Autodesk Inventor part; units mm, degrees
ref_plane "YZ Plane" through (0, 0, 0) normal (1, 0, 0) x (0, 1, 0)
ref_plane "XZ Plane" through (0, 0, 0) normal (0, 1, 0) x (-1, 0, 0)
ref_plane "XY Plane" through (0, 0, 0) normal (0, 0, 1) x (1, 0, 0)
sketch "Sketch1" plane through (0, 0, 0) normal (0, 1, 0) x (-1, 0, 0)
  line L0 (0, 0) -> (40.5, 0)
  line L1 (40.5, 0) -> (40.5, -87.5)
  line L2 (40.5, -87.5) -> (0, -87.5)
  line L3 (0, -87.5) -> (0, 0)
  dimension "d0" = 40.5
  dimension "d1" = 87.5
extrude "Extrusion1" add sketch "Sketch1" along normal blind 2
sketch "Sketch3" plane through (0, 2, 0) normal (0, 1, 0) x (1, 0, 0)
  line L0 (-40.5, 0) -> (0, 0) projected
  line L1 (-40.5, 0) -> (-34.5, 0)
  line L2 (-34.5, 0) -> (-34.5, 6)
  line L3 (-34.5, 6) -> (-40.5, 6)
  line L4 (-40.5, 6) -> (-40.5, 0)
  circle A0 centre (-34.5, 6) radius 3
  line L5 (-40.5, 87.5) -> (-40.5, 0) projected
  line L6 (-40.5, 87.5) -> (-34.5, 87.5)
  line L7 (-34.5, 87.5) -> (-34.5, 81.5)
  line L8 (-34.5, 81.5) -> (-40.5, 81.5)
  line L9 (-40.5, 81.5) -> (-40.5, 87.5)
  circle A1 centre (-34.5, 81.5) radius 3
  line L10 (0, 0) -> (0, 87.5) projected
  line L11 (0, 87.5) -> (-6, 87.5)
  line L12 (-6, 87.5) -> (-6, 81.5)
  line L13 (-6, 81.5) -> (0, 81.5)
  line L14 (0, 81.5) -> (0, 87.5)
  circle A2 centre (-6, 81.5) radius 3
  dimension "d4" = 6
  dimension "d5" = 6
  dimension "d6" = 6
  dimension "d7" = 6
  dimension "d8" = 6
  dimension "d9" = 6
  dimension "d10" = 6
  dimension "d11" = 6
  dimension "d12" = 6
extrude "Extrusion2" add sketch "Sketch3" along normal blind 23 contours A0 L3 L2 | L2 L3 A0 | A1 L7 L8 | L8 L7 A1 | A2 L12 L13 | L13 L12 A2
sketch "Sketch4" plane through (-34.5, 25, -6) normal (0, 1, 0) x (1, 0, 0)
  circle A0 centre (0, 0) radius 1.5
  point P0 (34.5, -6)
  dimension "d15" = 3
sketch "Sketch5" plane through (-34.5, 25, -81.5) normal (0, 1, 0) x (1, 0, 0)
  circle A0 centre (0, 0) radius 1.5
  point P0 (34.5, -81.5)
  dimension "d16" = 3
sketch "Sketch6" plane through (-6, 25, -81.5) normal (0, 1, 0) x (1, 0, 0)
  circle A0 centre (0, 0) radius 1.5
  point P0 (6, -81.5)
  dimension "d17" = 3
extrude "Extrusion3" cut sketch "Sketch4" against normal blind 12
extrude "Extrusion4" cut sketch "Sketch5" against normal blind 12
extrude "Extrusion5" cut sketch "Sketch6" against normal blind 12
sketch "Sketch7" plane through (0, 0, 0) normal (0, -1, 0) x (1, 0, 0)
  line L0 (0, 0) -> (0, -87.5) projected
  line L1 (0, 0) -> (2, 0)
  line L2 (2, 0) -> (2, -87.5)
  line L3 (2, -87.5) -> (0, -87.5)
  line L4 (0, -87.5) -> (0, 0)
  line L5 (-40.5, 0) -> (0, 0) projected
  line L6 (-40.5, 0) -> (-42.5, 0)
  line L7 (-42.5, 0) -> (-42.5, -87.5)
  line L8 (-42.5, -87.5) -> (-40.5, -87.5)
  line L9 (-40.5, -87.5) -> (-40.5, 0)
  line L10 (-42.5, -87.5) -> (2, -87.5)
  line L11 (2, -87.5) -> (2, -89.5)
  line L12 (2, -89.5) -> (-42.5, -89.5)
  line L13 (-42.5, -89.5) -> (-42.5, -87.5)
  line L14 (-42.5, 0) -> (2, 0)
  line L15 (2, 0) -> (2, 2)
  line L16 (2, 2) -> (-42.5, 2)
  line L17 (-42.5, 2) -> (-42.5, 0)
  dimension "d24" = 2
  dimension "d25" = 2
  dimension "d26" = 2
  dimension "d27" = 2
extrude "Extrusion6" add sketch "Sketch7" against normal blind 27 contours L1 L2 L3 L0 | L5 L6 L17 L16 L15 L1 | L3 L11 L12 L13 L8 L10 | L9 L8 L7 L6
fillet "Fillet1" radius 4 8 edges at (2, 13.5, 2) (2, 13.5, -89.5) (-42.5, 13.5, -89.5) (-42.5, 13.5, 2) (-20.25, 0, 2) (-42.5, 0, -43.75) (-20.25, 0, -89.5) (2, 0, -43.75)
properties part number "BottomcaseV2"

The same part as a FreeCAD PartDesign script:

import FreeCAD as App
import Part
import Sketcher
Q = App.Units.Quantity


def edges_at(feature, points):
    """Names of the edges that pass closest to the given points."""
    edges = feature.Shape.Edges
    near = lambda p: min(range(len(edges)), key=lambda i: edges[i].distToShape(Part.Vertex(*p))[0])
    return sorted({f"Edge{near(p) + 1}" for p in points})


def add_polygon(sketch, points):
    """Adds a closed chain of lines whose ends are joined by coincident constraints."""
    first, n = sketch.GeometryCount, len(points)
    for a, b in zip(points, points[1:] + points[:1]):
        sketch.addGeometry(Part.LineSegment(App.Vector(*a, 0), App.Vector(*b, 0)), False)
    for i in range(n):
        sketch.addConstraint(Sketcher.Constraint("Coincident", first + i, 2, first + (i + 1) % n, 1))

doc = App.newDocument("Part")
body = doc.addObject("PartDesign::Body", "Body")

sketch1 = body.newObject("Sketcher::SketchObject", "Sketch")
sketch1.AttachmentSupport = (doc.getObject("XZ_Plane"), [""])
sketch1.MapMode = "FlatFace"
add_polygon(sketch1, [(-40, 0), (0, 0), (0, -88), (-40, -88)])
sketch1.addConstraint([
    Sketcher.Constraint("Horizontal", 0),
    Sketcher.Constraint("Vertical", 1),
    Sketcher.Constraint("Horizontal", 2),
    Sketcher.Constraint("Vertical", 3),
    Sketcher.Constraint("Coincident", 0, 2, -1, 1),
    Sketcher.Constraint("DistanceX", 0, 1, 0, 2, Q("40.5 mm")),
    Sketcher.Constraint("DistanceY", 1, 2, 1, 1, Q("87.5 mm")),
])
pad1 = body.newObject("PartDesign::Pad", "Pad")
pad1.Profile = sketch1
pad1.Length = 2
pad1.Reversed = True

sketch2 = body.newObject("Sketcher::SketchObject", "Sketch001")
sketch2.AttachmentSupport = (doc.getObject("XZ_Plane"), [""])
sketch2.MapMode = "FlatFace"
sketch2.AttachmentOffset = App.Placement(App.Vector(0, 0, -2), App.Rotation())
sketch2.addGeometry([
    Part.Circle(App.Vector(-34.5, -6, 0), App.Vector(0, 0, 1), 3),
    Part.Circle(App.Vector(-34.5, -81.5, 0), App.Vector(0, 0, 1), 3),
    Part.Circle(App.Vector(-6, -81.5, 0), App.Vector(0, 0, 1), 3),
], False)
sketch2.addConstraint([
    Sketcher.Constraint("Equal", 0, 1),
    Sketcher.Constraint("Equal", 1, 2),
    Sketcher.Constraint("Horizontal", 1, 3, 2, 3),
    Sketcher.Constraint("Vertical", 0, 3, 1, 3),
    Sketcher.Constraint("Diameter", 0, Q("6 mm")),
    Sketcher.Constraint("DistanceY", 0, 3, -1, 1, Q("6 mm")),
    Sketcher.Constraint("DistanceX", 2, 3, -1, 1, Q("6 mm")),
    Sketcher.Constraint("DistanceX", 0, 3, -1, 1, Q("34.5 mm")),
    Sketcher.Constraint("DistanceY", 1, 3, -1, 1, Q("81.5 mm")),
])
pad2 = body.newObject("PartDesign::Pad", "Pad001")
pad2.Profile = sketch2
pad2.Length = 23
pad2.Reversed = True

sketch3 = body.newObject("Sketcher::SketchObject", "Sketch002")
sketch3.AttachmentSupport = (doc.getObject("XZ_Plane"), [""])
sketch3.MapMode = "FlatFace"
sketch3.AttachmentOffset = App.Placement(App.Vector(0, 0, -25), App.Rotation())
sketch3.addGeometry(Part.Circle(App.Vector(-34.5, -6, 0), App.Vector(0, 0, 1), 1.5), False)
sketch3.addConstraint([
    Sketcher.Constraint("Diameter", 0, Q("3 mm")),
    Sketcher.Constraint("DistanceY", 0, 3, -1, 1, Q("6 mm")),
    Sketcher.Constraint("DistanceX", 0, 3, -1, 1, Q("34.5 mm")),
])
pocket1 = body.newObject("PartDesign::Pocket", "Pocket")
pocket1.Profile = sketch3
pocket1.Length = 12
pocket1.Reversed = True

sketch4 = body.newObject("Sketcher::SketchObject", "Sketch003")
sketch4.AttachmentSupport = (doc.getObject("XZ_Plane"), [""])
sketch4.MapMode = "FlatFace"
sketch4.AttachmentOffset = App.Placement(App.Vector(0, 0, -25), App.Rotation())
sketch4.addGeometry(Part.Circle(App.Vector(-34.5, -81.5, 0), App.Vector(0, 0, 1), 1.5), False)
sketch4.addConstraint([
    Sketcher.Constraint("Diameter", 0, Q("3 mm")),
    Sketcher.Constraint("DistanceX", 0, 3, -1, 1, Q("34.5 mm")),
    Sketcher.Constraint("DistanceY", 0, 3, -1, 1, Q("81.5 mm")),
])
pocket2 = body.newObject("PartDesign::Pocket", "Pocket001")
pocket2.Profile = sketch4
pocket2.Length = 12
pocket2.Reversed = True

sketch5 = body.newObject("Sketcher::SketchObject", "Sketch004")
sketch5.AttachmentSupport = (doc.getObject("XZ_Plane"), [""])
sketch5.MapMode = "FlatFace"
sketch5.AttachmentOffset = App.Placement(App.Vector(0, 0, -25), App.Rotation())
sketch5.addGeometry(Part.Circle(App.Vector(-6, -81.5, 0), App.Vector(0, 0, 1), 1.5), False)
sketch5.addConstraint([
    Sketcher.Constraint("Diameter", 0, Q("3 mm")),
    Sketcher.Constraint("DistanceX", 0, 3, -1, 1, Q("6 mm")),
    Sketcher.Constraint("DistanceY", 0, 3, -1, 1, Q("81.5 mm")),
])
pocket3 = body.newObject("PartDesign::Pocket", "Pocket002")
pocket3.Profile = sketch5
pocket3.Length = 12
pocket3.Reversed = True

sketch6 = body.newObject("Sketcher::SketchObject", "Sketch005")
sketch6.AttachmentSupport = (doc.getObject("XZ_Plane"), [""])
sketch6.MapMode = "FlatFace"
add_polygon(sketch6, [(2, 2), (-42, 2), (-42, -90), (2, -90)])
add_polygon(sketch6, [(0, 0), (0, -88), (-40, -88), (-40, 0)])
sketch6.addConstraint([
    Sketcher.Constraint("Horizontal", 0),
    Sketcher.Constraint("Vertical", 1),
    Sketcher.Constraint("Horizontal", 2),
    Sketcher.Constraint("Vertical", 3),
    Sketcher.Constraint("Vertical", 4),
    Sketcher.Constraint("Horizontal", 5),
    Sketcher.Constraint("Vertical", 6),
    Sketcher.Constraint("Horizontal", 7),
    Sketcher.Constraint("Coincident", 7, 2, -1, 1),
    Sketcher.Constraint("DistanceY", -1, 1, 0, 2, Q("2 mm")),
    Sketcher.Constraint("DistanceX", -1, 1, 2, 2, Q("2 mm")),
    Sketcher.Constraint("DistanceY", 2, 2, 4, 2, Q("2 mm")),
    Sketcher.Constraint("DistanceX", 1, 2, 5, 2, Q("2 mm")),
    Sketcher.Constraint("DistanceX", 0, 2, 0, 1, Q("44.5 mm")),
    Sketcher.Constraint("DistanceY", 1, 2, 1, 1, Q("91.5 mm")),
])
pad3 = body.newObject("PartDesign::Pad", "Pad002")
pad3.Profile = sketch6
pad3.Length = 27
pad3.Reversed = True
doc.recompute()

fillet = body.newObject("PartDesign::Fillet", "Fillet")
fillet.Base = (pad3, edges_at(pad3, [
    (2, 13.5, 2),
    (2, 13.5, -89.5),
    (-42.5, 13.5, -89.5),
    (-42.5, 13.5, 2),
    (-20.25, 0, 2),
    (-42.5, 0, -43.75),
    (-20.25, 0, -89.5),
    (2, 0, -43.75),
]))
fillet.Radius = 4

doc.recompute()
